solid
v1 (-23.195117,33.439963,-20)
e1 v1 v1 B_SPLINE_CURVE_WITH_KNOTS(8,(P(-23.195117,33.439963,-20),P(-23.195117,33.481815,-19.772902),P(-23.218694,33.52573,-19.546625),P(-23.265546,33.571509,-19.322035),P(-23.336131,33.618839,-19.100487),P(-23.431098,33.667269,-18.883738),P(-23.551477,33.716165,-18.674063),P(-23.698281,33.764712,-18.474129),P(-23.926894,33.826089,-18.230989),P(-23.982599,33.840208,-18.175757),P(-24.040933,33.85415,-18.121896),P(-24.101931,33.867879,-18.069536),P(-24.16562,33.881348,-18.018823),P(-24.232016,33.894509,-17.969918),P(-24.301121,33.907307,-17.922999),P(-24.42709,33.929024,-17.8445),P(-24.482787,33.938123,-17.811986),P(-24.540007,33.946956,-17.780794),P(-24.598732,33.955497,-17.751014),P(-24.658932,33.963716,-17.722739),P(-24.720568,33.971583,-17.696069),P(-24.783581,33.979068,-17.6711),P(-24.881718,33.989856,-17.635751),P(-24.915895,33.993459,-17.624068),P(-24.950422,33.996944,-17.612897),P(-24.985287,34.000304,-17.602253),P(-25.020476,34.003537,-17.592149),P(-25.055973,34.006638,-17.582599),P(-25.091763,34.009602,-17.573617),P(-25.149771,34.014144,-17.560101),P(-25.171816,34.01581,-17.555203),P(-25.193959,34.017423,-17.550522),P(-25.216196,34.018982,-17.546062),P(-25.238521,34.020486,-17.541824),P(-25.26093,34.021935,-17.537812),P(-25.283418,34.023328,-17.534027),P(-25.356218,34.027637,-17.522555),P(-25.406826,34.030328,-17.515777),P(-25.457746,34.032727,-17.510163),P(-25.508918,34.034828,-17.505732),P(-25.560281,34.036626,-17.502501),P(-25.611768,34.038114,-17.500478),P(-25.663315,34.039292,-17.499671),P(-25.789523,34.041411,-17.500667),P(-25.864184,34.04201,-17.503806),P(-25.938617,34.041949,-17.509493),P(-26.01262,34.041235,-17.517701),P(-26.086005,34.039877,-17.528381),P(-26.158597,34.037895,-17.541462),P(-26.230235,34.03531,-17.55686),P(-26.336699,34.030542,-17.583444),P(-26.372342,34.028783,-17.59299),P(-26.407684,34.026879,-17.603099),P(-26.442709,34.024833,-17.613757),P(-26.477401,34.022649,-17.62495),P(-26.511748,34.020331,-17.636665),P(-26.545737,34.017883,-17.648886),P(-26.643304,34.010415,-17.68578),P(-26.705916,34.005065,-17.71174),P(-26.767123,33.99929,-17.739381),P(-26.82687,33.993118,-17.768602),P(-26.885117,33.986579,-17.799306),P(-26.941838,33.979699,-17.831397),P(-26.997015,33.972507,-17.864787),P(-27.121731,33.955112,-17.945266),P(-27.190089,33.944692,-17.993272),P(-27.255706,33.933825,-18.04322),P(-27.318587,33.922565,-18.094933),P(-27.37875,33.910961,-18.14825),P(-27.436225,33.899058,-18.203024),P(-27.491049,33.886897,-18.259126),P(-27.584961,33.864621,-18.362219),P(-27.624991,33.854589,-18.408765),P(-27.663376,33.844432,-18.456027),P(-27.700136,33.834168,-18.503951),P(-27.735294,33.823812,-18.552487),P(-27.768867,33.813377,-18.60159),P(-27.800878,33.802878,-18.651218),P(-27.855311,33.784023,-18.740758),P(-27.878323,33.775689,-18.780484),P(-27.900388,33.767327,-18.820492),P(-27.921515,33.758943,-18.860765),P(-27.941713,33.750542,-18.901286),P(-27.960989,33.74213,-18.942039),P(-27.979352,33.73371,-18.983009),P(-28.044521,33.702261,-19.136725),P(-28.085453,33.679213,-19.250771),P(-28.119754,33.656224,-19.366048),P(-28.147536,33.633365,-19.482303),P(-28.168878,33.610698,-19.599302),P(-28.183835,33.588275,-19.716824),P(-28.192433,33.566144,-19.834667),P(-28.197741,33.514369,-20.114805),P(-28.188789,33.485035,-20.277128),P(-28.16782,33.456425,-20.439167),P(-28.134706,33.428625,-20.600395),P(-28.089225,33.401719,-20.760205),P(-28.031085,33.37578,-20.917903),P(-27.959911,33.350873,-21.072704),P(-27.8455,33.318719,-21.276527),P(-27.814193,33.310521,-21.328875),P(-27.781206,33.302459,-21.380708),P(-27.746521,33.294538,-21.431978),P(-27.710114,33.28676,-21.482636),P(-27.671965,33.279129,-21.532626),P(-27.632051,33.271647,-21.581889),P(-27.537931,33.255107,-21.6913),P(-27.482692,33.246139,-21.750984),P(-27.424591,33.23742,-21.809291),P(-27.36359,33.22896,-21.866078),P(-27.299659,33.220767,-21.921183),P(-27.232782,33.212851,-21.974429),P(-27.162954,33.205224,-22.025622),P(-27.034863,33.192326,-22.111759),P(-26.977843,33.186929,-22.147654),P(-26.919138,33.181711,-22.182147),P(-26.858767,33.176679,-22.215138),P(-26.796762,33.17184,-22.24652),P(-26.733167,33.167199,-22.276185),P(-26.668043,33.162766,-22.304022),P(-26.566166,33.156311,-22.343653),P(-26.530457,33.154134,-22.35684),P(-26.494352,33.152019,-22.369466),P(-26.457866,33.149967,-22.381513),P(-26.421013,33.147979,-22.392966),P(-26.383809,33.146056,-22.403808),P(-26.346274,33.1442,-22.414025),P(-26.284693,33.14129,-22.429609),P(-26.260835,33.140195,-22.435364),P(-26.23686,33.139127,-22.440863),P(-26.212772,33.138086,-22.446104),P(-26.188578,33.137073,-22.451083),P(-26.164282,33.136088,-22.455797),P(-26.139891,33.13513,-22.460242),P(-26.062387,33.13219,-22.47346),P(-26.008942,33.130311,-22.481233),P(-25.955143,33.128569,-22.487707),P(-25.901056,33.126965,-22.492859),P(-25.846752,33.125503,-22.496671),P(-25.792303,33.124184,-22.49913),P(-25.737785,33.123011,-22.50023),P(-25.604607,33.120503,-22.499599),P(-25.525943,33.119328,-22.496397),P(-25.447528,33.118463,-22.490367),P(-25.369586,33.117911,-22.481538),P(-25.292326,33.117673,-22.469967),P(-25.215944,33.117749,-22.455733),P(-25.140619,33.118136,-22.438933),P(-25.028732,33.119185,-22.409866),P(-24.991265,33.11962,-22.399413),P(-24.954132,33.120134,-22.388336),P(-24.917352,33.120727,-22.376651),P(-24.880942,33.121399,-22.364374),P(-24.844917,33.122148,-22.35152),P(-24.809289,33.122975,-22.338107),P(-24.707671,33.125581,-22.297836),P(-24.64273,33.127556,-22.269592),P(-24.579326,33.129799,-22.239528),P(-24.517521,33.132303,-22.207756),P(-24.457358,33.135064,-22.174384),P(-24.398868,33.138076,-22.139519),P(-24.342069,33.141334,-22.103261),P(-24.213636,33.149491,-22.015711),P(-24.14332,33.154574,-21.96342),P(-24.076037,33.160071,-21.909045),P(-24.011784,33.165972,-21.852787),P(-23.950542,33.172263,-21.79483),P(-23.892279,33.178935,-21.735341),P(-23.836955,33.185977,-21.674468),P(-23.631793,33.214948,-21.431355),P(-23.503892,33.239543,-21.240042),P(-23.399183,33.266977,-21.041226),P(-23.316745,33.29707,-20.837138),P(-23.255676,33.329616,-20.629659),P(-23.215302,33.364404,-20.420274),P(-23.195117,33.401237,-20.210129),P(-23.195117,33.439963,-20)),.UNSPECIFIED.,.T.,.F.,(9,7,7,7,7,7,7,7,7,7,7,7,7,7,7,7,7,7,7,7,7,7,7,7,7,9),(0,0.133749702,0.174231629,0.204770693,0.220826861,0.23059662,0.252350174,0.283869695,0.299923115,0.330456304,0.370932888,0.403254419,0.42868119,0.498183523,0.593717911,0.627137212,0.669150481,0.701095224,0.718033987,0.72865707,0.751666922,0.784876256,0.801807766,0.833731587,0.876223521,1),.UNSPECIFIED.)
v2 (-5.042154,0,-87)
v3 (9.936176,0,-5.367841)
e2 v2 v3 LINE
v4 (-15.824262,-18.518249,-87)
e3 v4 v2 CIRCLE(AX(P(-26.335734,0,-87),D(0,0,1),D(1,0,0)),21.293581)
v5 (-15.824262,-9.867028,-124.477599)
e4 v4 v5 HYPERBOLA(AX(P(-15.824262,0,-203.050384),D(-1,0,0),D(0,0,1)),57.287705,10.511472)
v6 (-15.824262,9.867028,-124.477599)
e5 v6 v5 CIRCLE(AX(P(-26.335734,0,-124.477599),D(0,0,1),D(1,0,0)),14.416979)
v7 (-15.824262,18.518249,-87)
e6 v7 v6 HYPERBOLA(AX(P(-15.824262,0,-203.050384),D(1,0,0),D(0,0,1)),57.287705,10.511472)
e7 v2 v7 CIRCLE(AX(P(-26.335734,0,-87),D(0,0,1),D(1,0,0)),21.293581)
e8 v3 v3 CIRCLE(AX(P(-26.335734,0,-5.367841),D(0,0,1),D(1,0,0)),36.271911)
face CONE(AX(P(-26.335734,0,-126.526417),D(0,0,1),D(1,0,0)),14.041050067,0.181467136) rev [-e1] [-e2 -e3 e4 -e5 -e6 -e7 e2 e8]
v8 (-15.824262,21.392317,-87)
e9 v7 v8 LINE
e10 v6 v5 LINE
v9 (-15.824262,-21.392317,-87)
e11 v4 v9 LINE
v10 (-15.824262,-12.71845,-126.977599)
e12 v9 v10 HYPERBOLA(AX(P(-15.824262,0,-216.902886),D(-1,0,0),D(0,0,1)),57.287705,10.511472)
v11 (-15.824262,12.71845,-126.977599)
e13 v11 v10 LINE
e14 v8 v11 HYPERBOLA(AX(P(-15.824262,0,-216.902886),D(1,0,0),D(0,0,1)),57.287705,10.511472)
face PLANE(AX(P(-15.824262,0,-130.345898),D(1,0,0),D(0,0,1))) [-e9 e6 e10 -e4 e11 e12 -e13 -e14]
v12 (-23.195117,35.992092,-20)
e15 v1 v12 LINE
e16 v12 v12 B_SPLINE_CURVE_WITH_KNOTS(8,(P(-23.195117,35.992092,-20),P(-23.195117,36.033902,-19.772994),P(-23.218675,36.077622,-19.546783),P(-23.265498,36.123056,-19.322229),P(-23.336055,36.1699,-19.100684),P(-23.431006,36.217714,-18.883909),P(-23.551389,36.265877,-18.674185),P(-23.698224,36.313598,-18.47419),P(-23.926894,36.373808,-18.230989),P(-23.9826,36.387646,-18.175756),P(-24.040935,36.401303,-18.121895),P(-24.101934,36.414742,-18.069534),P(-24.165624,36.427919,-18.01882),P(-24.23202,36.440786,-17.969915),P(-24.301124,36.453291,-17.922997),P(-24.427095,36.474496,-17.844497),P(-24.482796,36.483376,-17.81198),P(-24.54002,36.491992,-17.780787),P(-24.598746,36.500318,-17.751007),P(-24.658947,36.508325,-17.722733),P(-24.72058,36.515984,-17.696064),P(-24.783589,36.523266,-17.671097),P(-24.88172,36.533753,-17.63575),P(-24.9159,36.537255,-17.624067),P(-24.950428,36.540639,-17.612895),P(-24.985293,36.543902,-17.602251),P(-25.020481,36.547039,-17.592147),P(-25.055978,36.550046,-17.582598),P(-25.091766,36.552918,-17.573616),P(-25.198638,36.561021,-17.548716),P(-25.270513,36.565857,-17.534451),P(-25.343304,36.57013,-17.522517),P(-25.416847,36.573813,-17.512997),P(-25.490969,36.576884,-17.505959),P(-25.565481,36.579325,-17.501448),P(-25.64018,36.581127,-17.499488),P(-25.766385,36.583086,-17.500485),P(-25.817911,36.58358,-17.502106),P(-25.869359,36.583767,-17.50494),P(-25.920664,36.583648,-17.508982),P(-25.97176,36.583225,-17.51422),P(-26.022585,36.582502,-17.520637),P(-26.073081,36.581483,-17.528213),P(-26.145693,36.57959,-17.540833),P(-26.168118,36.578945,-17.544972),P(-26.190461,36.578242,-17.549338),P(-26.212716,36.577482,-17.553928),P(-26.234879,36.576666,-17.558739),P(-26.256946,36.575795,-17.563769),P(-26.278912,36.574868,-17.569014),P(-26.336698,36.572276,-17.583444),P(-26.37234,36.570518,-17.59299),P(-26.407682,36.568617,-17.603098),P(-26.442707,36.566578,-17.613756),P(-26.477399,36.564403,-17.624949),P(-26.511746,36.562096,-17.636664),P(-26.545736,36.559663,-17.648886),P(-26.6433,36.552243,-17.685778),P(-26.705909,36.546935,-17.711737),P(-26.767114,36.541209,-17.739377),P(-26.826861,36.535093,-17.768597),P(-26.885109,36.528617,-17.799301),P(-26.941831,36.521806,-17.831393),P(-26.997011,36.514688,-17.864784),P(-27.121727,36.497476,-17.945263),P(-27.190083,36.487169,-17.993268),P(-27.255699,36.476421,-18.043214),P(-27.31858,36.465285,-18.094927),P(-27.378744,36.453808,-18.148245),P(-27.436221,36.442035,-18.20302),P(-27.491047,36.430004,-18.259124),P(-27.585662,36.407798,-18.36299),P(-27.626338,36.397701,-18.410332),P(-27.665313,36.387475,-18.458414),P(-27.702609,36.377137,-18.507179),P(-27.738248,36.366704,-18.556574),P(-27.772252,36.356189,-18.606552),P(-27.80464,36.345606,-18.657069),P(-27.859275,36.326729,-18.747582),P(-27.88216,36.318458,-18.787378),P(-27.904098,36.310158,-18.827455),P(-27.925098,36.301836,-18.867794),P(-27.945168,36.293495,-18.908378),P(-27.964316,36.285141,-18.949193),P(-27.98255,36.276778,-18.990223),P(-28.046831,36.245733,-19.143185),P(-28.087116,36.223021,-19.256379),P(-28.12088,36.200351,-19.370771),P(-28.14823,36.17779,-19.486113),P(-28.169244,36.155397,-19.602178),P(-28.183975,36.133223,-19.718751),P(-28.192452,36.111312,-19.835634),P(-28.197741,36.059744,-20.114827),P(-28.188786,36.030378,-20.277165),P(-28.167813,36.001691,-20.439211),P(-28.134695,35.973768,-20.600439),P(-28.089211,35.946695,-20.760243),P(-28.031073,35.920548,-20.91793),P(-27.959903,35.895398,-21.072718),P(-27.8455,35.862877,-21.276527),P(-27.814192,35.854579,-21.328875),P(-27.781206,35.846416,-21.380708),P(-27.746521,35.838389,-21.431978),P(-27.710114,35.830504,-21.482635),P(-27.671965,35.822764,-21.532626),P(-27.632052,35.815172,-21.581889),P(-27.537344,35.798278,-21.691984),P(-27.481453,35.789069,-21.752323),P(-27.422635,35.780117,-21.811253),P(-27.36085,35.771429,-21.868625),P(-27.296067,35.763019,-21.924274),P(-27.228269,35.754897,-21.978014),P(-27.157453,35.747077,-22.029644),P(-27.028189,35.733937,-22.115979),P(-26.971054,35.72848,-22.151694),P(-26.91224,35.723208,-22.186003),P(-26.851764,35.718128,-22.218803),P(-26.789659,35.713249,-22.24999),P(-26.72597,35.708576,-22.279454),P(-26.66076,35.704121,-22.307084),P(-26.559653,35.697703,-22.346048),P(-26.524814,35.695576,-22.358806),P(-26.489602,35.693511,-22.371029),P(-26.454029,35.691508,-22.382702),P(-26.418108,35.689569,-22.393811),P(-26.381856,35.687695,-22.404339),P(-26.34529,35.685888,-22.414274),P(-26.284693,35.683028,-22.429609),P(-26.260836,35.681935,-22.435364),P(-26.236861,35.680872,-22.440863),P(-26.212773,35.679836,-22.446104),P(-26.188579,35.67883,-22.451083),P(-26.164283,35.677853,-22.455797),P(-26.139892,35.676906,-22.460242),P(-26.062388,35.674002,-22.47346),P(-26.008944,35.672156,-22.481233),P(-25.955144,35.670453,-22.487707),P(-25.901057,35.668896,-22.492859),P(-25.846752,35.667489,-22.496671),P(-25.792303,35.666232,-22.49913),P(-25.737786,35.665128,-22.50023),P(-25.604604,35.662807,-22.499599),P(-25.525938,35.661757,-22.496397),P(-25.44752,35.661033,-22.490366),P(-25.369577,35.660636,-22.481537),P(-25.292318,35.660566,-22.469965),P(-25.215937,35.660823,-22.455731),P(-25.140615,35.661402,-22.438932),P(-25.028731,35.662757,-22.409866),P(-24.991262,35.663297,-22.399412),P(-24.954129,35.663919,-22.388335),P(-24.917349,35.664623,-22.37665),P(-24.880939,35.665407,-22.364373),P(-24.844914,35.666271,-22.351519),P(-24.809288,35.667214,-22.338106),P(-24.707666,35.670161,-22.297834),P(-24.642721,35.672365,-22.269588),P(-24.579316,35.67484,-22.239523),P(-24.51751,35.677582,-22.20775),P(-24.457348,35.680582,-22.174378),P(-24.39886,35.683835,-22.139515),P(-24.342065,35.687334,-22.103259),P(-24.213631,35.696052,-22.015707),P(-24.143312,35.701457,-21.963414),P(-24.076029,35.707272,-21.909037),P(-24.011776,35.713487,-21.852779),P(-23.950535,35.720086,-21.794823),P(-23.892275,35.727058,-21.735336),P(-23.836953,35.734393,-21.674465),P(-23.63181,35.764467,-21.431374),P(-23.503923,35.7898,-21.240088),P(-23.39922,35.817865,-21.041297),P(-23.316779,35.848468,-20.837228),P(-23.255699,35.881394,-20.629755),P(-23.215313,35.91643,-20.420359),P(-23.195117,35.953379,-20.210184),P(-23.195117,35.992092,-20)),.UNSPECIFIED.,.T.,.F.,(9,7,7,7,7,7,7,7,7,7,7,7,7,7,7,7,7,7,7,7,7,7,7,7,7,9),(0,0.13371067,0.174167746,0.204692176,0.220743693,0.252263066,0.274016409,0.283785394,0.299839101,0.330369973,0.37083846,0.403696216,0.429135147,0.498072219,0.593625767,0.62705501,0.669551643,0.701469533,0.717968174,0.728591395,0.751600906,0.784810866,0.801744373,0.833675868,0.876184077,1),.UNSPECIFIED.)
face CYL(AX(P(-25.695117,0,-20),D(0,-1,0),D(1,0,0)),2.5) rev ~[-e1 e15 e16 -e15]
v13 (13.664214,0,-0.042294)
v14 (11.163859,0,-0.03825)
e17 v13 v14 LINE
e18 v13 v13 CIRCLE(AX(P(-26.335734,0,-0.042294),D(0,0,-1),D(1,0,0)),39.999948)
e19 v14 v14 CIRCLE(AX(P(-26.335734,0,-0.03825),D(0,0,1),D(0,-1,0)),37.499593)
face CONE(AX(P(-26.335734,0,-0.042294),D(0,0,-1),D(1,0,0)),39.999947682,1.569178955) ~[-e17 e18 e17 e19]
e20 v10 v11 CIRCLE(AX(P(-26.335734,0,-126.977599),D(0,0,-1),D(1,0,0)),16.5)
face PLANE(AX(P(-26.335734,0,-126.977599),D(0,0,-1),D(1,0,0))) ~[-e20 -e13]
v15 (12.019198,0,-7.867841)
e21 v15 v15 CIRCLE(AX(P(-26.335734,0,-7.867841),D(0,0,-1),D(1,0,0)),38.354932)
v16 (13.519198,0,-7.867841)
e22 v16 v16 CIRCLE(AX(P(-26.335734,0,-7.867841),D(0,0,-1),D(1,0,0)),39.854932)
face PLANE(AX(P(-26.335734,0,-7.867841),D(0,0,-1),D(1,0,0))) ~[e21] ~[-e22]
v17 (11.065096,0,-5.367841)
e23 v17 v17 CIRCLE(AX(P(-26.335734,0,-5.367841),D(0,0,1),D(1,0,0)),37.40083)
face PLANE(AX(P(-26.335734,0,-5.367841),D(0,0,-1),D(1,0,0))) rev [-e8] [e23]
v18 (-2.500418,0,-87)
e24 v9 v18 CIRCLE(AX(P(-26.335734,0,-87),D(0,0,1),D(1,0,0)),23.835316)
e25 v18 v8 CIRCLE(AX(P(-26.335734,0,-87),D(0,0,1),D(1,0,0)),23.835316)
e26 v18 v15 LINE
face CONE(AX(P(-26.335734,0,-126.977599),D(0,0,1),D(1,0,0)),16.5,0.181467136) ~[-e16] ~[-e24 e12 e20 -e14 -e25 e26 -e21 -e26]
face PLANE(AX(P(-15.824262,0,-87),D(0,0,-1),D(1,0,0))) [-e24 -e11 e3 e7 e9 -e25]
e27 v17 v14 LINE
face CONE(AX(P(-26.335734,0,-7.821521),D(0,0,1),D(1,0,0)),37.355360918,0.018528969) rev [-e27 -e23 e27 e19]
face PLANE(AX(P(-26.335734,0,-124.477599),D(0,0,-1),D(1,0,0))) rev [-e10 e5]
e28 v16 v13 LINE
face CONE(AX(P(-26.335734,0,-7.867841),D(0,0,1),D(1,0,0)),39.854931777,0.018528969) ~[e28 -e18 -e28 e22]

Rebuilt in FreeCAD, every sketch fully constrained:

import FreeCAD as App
import Part
import Sketcher

V = App.Vector
Q = App.Units.Quantity


def faces_at(feature, points):
    """Names of the faces that lie closest to the given points."""
    faces = feature.Shape.Faces
    near = lambda p: min(range(len(faces)), key=lambda i: faces[i].distToShape(Part.Vertex(*p))[0])
    return sorted({f"Face{near(p) + 1}" for p in points})

doc = App.newDocument("Part")
body = doc.addObject("PartDesign::Body", "Body")

sketch1 = body.newObject("Sketcher::SketchObject", "Sketch")
sketch1.AttachmentSupport = (doc.getObject("XZ_Plane"), [""])
sketch1.MapMode = "FlatFace"
sketch1.addGeometry([
    Part.LineSegment(V(-26.3, 0, 0), V(-26.3, -127, 0)),
    Part.LineSegment(V(-26.3, -127, 0), V(-9.8, -127, 0)),
    Part.LineSegment(V(-9.8, -127, 0), V(12, -7.9, 0)),
    Part.LineSegment(V(12, -7.9, 0), V(13.5, -7.9, 0)),
    Part.LineSegment(V(13.5, -7.9, 0), V(13.7, 0, 0)),
    Part.LineSegment(V(13.7, 0, 0), V(-26.3, 0, 0)),
], False)
sketch1.addGeometry(Part.LineSegment(V(-26.3, 0, 0), V(-26.3, -127, 0)), True)
sketch1.addConstraint([
    Sketcher.Constraint("Coincident", 0, 2, 1, 1),
    Sketcher.Constraint("Coincident", 1, 2, 2, 1),
    Sketcher.Constraint("Coincident", 2, 2, 3, 1),
    Sketcher.Constraint("Coincident", 3, 2, 4, 1),
    Sketcher.Constraint("Coincident", 4, 2, 5, 1),
    Sketcher.Constraint("Coincident", 5, 2, 0, 1),
    Sketcher.Constraint("Vertical", 0),
    Sketcher.Constraint("Horizontal", 1),
    Sketcher.Constraint("Horizontal", 3),
    Sketcher.Constraint("Vertical", 6),
    Sketcher.Constraint("Coincident", 6, 1, 5, 2),
    Sketcher.Constraint("Horizontal", 1, 2, 6, 2),
    Sketcher.Constraint("DistanceY", 0, 2, 0, 1, Q("127 mm")),
    Sketcher.Constraint("Distance", 5, Q("40 mm")),
    Sketcher.Constraint("DistanceX", 1, 1, 1, 2, Q("16.5 mm")),
    Sketcher.Constraint("DistanceX", 3, 1, 3, 2, Q("1.5 mm")),
    Sketcher.Constraint("DistanceY", 0, 2, -1, 1, Q("126.977599 mm")),
    Sketcher.Constraint("Distance", 4, Q("7.82689 mm")),
    Sketcher.Constraint("DistanceY", 2, 2, -1, 1, Q("7.867841 mm")),
    Sketcher.Constraint("DistanceX", 1, 2, 2, 2, Q("21.854932 mm")),
    Sketcher.Constraint("DistanceX", 0, 2, -1, 1, Q("26.335734 mm")),
])
revolution = body.newObject("PartDesign::Revolution", "Revolution")
revolution.Profile = sketch1
revolution.ReferenceAxis = (sketch1, ["Axis0"])
revolution.Angle = 360
doc.recompute()

thickness = body.newObject("PartDesign::Thickness", "Thickness")
thickness.Base = (revolution, faces_at(revolution, [(-46.336, 0, -0.01)]))
thickness.Value = 2.5
thickness.Reversed = True
thickness.Join = "Intersection"

sketch2 = body.newObject("Sketcher::SketchObject", "Sketch001")
sketch2.AttachmentSupport = (doc.getObject("XZ_Plane"), [""])
sketch2.MapMode = "FlatFace"
sketch2.addGeometry([
    Part.LineSegment(V(-15.8, -87, 0), V(-15.8, -130.3, 0)),
    Part.LineSegment(V(-15.8, -130.3, 0), V(7.4, -130.3, 0)),
    Part.LineSegment(V(7.4, -130.3, 0), V(7.4, -87, 0)),
    Part.LineSegment(V(7.4, -87, 0), V(-15.8, -87, 0)),
    Part.Circle(V(-25.7, -20, 0), V(0, 0, 1), 2.5),
], False)
sketch2.addConstraint([
    Sketcher.Constraint("Coincident", 0, 2, 1, 1),
    Sketcher.Constraint("Coincident", 1, 2, 2, 1),
    Sketcher.Constraint("Coincident", 2, 2, 3, 1),
    Sketcher.Constraint("Coincident", 3, 2, 0, 1),
    Sketcher.Constraint("Vertical", 0),
    Sketcher.Constraint("Horizontal", 1),
    Sketcher.Constraint("Vertical", 2),
    Sketcher.Constraint("Horizontal", 3),
    Sketcher.Constraint("Diameter", 4, Q("5 mm")),
    Sketcher.Constraint("DistanceY", 4, 3, -1, 1, Q("20 mm")),
    Sketcher.Constraint("DistanceY", 2, 2, -1, 1, Q("87 mm")),
    Sketcher.Constraint("DistanceX", 1, 1, 1, 2, Q("23.239442 mm")),
    Sketcher.Constraint("DistanceY", 0, 2, 0, 1, Q("43.345898 mm")),
    Sketcher.Constraint("DistanceX", -1, 1, 1, 2, Q("7.41518 mm")),
    Sketcher.Constraint("DistanceX", 4, 3, -1, 1, Q("25.695117 mm")),
])
pocket1 = body.newObject("PartDesign::Pocket", "Pocket")
pocket1.Profile = sketch2
pocket1.Type = "ThroughAll"

sketch3 = body.newObject("Sketcher::SketchObject", "Sketch002")
sketch3.AttachmentSupport = (doc.getObject("XZ_Plane"), [""])
sketch3.MapMode = "FlatFace"
sketch3.addGeometry([
    Part.LineSegment(V(-16, -87, 0), V(-16, -130, 0)),
    Part.LineSegment(V(-16, -130, 0), V(7, -130, 0)),
    Part.LineSegment(V(7, -130, 0), V(7, -87, 0)),
    Part.LineSegment(V(7, -87, 0), V(-16, -87, 0)),
], False)
sketch3.addConstraint([
    Sketcher.Constraint("Coincident", 0, 2, 1, 1),
    Sketcher.Constraint("Coincident", 1, 2, 2, 1),
    Sketcher.Constraint("Coincident", 2, 2, 3, 1),
    Sketcher.Constraint("Coincident", 3, 2, 0, 1),
    Sketcher.Constraint("Vertical", 0),
    Sketcher.Constraint("Horizontal", 1),
    Sketcher.Constraint("Vertical", 2),
    Sketcher.Constraint("Horizontal", 3),
    Sketcher.Constraint("DistanceY", 2, 2, -1, 1, Q("87 mm")),
    Sketcher.Constraint("DistanceX", 1, 1, 1, 2, Q("23.239442 mm")),
    Sketcher.Constraint("DistanceY", 0, 2, 0, 1, Q("43.345898 mm")),
    Sketcher.Constraint("DistanceX", -1, 1, 1, 2, Q("7.41518 mm")),
])
pocket2 = body.newObject("PartDesign::Pocket", "Pocket001")
pocket2.Profile = sketch3
pocket2.Type = "ThroughAll"
pocket2.Reversed = True

doc.recompute()
